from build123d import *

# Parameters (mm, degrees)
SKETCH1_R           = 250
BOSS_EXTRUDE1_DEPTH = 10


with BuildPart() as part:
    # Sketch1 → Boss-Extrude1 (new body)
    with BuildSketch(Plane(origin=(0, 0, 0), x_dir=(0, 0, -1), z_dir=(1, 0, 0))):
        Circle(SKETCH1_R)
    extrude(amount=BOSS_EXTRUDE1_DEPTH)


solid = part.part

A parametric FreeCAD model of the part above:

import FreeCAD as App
import Part
import Sketcher
from FreeCAD import Vector

doc = App.newDocument("Part")
body = doc.addObject("PartDesign::Body", "Body")

# Sketch on YZ plane
sketch1 = body.newObject("Sketcher::SketchObject", "Sketch")
sketch1.AttachmentSupport = (doc.getObject("YZ_Plane"), [""])
sketch1.MapMode = "FlatFace"
sketch1.addGeometry(Part.Circle(Vector(0, 0, 0), Vector(0, 0, 1), 250), False)
sketch1.addConstraint([
    Sketcher.Constraint("Coincident", 0, 3, -1, 1),
    Sketcher.Constraint("Diameter", 0, 500.0),
])
pad1 = body.newObject("PartDesign::Pad", "Pad")
pad1.Profile = sketch1
pad1.Length = 10

doc.recompute()
